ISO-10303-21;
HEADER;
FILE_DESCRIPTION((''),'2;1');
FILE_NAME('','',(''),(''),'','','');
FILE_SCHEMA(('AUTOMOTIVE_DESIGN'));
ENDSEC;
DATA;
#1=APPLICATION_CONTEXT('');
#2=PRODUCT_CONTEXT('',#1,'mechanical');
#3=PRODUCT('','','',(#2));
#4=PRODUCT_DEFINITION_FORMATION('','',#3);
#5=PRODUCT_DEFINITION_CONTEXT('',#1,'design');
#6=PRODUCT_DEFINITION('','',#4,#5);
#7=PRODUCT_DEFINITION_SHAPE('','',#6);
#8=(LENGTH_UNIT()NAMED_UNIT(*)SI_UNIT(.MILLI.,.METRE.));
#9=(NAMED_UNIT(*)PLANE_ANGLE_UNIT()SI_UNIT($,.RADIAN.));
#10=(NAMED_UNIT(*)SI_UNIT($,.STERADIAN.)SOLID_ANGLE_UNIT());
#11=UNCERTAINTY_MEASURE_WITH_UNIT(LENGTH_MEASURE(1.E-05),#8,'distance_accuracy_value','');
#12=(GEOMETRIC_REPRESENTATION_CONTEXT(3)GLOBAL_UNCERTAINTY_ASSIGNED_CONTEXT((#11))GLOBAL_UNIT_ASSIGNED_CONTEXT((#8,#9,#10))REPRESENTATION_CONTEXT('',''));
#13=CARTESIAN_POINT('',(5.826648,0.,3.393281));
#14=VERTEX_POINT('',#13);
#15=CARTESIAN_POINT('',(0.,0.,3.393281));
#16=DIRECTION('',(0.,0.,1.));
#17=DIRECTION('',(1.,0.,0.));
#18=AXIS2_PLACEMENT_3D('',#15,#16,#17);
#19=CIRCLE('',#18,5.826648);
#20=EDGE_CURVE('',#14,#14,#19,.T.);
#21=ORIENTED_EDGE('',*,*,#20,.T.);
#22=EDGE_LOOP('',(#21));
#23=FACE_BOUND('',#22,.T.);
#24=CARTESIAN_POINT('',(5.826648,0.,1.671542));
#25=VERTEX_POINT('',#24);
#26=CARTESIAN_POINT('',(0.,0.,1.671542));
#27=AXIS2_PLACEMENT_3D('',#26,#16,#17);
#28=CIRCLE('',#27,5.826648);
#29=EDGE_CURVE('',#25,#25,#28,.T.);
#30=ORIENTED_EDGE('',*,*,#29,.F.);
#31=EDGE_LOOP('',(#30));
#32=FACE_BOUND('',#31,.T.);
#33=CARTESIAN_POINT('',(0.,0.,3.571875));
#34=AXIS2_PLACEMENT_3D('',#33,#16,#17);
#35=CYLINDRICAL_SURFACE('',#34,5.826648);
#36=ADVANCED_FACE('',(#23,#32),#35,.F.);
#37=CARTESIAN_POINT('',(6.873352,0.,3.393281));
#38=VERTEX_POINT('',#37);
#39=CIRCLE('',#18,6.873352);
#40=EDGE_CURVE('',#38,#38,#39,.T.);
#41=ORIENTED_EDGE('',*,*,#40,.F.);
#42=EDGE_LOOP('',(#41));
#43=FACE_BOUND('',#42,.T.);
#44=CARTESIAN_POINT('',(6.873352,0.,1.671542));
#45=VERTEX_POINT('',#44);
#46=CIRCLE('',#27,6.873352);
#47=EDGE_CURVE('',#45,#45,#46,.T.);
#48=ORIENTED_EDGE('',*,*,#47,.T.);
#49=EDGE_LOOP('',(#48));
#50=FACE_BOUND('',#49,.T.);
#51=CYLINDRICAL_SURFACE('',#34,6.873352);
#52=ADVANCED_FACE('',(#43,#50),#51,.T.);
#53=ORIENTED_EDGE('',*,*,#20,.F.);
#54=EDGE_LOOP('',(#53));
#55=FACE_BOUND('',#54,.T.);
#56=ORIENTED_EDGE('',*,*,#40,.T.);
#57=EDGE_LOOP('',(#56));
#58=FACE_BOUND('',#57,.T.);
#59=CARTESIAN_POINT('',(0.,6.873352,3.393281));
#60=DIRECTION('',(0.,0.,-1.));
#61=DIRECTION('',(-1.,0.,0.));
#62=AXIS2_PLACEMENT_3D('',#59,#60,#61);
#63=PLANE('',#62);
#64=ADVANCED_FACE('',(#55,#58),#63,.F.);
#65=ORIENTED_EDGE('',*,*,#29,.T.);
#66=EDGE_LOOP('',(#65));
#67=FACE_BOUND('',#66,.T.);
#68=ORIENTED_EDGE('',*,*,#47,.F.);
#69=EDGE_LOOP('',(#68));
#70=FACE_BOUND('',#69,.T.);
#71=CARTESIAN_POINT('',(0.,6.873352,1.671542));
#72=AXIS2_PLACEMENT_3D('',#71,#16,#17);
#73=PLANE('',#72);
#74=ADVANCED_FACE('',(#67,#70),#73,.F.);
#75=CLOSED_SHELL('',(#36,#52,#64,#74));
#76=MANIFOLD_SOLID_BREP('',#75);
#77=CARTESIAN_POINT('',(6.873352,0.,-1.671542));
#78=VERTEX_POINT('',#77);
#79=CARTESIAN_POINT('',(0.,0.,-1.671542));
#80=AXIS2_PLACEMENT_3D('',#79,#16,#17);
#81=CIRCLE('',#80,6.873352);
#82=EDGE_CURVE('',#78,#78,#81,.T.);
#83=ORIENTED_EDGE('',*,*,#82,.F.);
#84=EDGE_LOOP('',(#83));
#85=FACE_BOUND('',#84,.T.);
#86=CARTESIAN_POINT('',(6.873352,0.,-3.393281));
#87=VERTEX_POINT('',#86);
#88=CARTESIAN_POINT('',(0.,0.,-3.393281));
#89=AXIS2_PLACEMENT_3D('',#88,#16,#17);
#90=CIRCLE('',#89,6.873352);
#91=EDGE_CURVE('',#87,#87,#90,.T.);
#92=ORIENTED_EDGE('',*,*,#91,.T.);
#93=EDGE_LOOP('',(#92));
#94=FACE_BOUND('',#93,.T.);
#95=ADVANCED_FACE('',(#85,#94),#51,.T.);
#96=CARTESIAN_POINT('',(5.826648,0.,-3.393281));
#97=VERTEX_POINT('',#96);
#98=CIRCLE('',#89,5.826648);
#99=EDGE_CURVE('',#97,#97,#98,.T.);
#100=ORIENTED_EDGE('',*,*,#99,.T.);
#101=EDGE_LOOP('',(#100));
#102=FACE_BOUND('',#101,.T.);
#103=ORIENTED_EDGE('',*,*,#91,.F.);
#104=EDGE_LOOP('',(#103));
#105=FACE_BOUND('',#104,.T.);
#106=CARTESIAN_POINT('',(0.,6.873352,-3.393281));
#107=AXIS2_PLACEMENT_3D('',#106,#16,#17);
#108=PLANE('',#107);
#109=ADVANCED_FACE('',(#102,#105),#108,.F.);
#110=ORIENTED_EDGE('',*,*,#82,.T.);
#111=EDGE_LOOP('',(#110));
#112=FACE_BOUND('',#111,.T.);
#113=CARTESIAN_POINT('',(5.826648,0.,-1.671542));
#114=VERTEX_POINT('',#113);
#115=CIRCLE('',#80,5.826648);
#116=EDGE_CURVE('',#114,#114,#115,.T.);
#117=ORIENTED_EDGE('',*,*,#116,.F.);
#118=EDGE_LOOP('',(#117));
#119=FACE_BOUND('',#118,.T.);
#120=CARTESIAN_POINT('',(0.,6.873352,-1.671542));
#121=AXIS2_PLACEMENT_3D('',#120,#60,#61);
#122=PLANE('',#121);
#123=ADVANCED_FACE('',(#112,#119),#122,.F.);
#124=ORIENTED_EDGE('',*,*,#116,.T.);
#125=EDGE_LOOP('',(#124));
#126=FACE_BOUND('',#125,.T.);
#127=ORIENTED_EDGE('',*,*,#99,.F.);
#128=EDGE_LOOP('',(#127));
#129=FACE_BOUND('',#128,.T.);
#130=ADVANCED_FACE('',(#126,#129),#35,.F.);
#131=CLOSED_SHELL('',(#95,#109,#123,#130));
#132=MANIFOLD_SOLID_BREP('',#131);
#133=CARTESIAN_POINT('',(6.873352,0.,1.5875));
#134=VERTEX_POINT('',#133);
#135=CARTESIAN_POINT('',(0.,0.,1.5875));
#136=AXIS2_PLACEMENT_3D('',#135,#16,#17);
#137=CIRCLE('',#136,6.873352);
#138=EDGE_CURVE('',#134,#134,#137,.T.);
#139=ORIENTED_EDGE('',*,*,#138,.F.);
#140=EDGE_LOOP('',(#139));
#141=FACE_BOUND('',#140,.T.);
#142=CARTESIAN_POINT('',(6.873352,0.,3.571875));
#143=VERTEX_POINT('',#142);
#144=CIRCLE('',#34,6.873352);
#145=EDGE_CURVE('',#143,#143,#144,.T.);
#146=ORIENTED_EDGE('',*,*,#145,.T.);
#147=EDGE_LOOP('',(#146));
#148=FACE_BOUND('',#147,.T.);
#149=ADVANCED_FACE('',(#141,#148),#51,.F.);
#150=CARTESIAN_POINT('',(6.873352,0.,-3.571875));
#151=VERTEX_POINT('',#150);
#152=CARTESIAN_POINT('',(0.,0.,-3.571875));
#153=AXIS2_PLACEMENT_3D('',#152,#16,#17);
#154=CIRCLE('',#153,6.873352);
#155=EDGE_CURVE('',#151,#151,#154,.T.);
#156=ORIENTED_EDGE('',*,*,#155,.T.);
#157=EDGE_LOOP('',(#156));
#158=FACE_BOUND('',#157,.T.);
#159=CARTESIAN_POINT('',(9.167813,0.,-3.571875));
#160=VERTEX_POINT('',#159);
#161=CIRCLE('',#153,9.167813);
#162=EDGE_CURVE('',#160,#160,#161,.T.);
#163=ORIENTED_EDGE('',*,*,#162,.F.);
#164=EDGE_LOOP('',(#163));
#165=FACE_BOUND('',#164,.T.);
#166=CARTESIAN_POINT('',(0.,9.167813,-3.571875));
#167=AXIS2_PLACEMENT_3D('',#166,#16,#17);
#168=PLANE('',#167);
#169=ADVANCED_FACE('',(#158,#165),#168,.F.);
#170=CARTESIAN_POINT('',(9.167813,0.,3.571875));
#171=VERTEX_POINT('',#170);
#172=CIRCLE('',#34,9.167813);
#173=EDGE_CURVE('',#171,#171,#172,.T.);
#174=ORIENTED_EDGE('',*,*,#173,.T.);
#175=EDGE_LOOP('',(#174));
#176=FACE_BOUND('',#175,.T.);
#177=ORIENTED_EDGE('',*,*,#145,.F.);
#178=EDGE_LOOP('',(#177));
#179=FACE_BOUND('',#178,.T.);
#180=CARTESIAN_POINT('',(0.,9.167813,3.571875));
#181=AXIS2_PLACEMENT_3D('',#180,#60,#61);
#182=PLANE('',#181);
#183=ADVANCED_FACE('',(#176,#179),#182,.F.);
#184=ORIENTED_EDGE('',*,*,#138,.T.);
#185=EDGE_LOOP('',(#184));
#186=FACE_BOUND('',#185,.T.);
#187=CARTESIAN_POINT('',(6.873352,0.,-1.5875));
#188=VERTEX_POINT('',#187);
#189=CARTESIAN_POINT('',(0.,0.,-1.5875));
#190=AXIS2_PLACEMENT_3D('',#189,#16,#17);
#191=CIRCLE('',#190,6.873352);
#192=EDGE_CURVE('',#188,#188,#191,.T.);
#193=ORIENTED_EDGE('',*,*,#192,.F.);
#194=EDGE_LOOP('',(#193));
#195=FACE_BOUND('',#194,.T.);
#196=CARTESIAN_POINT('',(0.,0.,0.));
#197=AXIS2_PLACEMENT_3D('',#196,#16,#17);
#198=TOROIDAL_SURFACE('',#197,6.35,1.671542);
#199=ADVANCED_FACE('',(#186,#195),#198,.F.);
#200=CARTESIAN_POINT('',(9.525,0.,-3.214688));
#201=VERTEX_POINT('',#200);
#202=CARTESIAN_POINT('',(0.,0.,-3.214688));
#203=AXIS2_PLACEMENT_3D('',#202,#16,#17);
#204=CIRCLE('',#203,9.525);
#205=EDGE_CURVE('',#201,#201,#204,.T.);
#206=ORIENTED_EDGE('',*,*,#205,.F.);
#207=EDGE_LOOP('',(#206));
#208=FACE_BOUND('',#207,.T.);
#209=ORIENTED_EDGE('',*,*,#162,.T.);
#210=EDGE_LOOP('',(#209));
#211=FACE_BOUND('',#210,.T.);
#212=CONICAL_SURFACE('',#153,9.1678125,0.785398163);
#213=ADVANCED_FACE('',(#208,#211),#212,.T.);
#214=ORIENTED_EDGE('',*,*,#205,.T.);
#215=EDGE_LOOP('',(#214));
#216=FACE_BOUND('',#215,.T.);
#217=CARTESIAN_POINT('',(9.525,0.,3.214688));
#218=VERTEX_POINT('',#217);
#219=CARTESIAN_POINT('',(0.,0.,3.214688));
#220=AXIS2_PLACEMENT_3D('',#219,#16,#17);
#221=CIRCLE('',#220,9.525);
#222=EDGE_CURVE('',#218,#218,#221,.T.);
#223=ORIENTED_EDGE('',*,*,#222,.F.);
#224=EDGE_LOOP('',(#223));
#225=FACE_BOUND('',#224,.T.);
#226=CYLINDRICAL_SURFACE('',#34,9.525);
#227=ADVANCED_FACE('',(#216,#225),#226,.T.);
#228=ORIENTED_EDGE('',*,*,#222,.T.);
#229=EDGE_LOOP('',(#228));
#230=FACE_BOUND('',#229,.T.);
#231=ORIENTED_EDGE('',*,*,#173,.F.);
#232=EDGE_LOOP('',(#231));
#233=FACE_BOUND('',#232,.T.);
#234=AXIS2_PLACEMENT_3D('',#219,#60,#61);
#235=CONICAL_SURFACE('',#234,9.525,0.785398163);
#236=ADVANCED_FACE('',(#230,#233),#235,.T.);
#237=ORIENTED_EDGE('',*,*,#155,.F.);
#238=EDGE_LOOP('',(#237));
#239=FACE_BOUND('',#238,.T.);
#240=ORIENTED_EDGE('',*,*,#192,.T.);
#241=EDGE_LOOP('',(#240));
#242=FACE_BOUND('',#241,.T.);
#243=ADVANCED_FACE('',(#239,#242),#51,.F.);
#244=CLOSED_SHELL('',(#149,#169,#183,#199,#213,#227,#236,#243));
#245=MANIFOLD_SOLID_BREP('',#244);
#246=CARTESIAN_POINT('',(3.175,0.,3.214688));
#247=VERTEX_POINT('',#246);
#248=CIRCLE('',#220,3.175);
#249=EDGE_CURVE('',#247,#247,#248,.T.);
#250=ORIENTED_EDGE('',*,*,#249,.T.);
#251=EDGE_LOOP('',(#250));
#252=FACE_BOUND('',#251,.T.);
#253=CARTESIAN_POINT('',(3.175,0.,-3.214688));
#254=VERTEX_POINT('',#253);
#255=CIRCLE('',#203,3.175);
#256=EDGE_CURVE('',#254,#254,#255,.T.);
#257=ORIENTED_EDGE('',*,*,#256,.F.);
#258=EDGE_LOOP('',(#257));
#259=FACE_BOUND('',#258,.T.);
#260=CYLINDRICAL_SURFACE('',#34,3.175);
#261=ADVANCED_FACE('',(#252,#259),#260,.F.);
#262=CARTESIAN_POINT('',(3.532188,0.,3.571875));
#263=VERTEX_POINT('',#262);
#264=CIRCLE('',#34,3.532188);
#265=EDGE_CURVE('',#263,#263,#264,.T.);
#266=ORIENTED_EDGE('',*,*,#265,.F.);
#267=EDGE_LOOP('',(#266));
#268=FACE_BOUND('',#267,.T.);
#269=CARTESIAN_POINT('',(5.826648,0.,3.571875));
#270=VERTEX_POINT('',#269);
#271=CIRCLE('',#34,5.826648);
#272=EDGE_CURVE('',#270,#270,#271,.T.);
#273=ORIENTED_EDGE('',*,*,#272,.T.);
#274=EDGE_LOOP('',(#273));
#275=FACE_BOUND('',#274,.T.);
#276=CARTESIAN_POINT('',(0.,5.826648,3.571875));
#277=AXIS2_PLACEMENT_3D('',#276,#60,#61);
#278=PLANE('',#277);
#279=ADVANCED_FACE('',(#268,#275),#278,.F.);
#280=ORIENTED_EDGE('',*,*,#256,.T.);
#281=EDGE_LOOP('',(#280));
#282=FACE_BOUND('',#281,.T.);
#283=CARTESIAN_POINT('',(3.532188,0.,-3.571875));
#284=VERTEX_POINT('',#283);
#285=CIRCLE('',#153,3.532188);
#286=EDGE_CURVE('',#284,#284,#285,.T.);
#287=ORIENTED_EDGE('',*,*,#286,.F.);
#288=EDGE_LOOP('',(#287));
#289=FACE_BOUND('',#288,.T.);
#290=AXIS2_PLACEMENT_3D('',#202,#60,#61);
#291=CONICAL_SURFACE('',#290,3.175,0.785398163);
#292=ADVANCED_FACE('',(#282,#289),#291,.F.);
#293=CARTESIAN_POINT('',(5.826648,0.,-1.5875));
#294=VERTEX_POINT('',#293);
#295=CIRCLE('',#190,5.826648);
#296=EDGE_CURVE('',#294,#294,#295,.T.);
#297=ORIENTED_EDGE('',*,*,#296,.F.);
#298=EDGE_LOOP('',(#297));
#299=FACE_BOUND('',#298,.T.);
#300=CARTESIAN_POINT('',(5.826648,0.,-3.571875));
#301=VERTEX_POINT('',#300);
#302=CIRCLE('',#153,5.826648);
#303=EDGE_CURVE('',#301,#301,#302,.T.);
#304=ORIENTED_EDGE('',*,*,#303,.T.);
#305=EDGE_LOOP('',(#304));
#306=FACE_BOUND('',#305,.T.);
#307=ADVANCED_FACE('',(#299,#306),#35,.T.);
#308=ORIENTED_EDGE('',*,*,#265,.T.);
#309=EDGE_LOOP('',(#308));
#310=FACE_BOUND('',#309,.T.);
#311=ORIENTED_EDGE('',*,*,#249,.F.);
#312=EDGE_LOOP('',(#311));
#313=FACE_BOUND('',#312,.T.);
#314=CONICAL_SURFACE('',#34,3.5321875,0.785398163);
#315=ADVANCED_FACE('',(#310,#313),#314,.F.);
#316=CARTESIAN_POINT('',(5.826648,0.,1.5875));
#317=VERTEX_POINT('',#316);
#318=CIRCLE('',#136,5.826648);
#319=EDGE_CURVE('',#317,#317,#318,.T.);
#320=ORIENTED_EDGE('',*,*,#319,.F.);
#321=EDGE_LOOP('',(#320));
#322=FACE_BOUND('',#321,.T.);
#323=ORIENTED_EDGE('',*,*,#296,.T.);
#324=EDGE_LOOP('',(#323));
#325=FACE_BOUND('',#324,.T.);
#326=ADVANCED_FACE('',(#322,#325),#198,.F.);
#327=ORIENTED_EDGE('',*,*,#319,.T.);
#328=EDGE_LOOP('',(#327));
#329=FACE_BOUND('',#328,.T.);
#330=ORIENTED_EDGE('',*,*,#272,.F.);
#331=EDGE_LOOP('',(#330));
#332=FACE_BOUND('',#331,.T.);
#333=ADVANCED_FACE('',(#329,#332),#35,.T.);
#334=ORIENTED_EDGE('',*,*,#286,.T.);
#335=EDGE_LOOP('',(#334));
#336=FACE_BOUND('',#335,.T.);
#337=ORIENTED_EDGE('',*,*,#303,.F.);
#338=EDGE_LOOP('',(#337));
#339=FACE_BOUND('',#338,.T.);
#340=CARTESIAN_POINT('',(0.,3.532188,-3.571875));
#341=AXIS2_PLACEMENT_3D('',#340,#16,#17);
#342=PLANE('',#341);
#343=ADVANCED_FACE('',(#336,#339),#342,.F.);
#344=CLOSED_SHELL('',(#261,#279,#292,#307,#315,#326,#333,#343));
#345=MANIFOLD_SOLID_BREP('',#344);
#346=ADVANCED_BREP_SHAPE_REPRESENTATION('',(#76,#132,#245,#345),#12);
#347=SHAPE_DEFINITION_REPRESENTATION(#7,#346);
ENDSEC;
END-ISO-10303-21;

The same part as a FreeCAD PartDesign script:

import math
import FreeCAD as App
import Part
import Sketcher

V = App.Vector
Q = App.Units.Quantity

doc = App.newDocument("Part")
params = doc.addObject("Spreadsheet::Sheet", "Params")
for row, (alias, value) in enumerate([
    ("sketch1_height", "0.078125 in"),
    ("revolution_angle", "360 deg"),
    ("sketch2_height", "0.078125 in"),
    ("revolution2_angle", "360 deg"),
    ("revolution3_angle", "360 deg"),
], start=1):
    params.set(f"A{row}", alias)
    params.set(f"B{row}", "=" + value)
    params.setAlias(f"B{row}", alias)

body = doc.addObject("PartDesign::Body", "Body")

sketch1 = doc.addObject("Sketcher::SketchObject", "Sketch")
body.addObject(sketch1)
sketch1.AttachmentSupport = (doc.YZ_Plane, [""])
sketch1.MapMode = "FlatFace"
sketch1.addGeometry([
    Part.LineSegment(V(9.525, -3.214688, 0), V(9.525, 3.214688, 0)),
    Part.LineSegment(V(9.525, 3.214688, 0), V(9.167813, 3.571875, 0)),
    Part.LineSegment(V(9.167813, 3.571875, 0), V(6.873352, 3.571875, 0)),
    Part.LineSegment(V(6.873352, 3.571875, 0), V(6.873352, 1.5875, 0)),
    Part.ArcOfCircle(Part.Circle(V(6.35, 0, 0), V(0, 0, 1), 1.671542), math.radians(-71.754146), math.radians(71.754146)),
    Part.LineSegment(V(6.873352, -1.5875, 0), V(6.873352, -3.571875, 0)),
    Part.LineSegment(V(6.873352, -3.571875, 0), V(9.167813, -3.571875, 0)),
    Part.LineSegment(V(9.167813, -3.571875, 0), V(9.525, -3.214688, 0)),
], False)
sketch1.addConstraint([
    Sketcher.Constraint("Coincident", 0, 2, 1, 1),
    Sketcher.Constraint("Coincident", 1, 2, 2, 1),
    Sketcher.Constraint("Coincident", 2, 2, 3, 1),
    Sketcher.Constraint("Coincident", 3, 2, 4, 2),
    Sketcher.Constraint("Coincident", 4, 1, 5, 1),
    Sketcher.Constraint("Coincident", 5, 2, 6, 1),
    Sketcher.Constraint("Coincident", 6, 2, 7, 1),
    Sketcher.Constraint("Coincident", 7, 2, 0, 1),
    Sketcher.Constraint("Vertical", 0),
    Sketcher.Constraint("Horizontal", 2),
    Sketcher.Constraint("Vertical", 3),
    Sketcher.Constraint("Vertical", 5),
    Sketcher.Constraint("Horizontal", 6),
    Sketcher.Constraint("Symmetric", 3, 2, 4, 1, -1),
    Sketcher.Constraint("Symmetric", 1, 2, 6, 2, -1),
    Sketcher.Constraint("Perpendicular", 1, 7),
    Sketcher.Constraint("Equal", 1, 7),
    Sketcher.Constraint("DistanceY", 3, 2, 3, 1, Q("0.078125 in")),
    Sketcher.Constraint("DistanceX", -1, 1, 4, 3, Q("0.25 in")),
    Sketcher.Constraint("DistanceX", -1, 1, 0, 2, Q("0.375 in")),
    Sketcher.Constraint("DistanceY", -1, 1, 1, 2, Q("0.140625 in")),
    Sketcher.Constraint("Radius", 4, 1.671542),
    Sketcher.Constraint("DistanceX", 2, 2, 2, 1, 2.294461),
])
sketch1.setExpression("Constraints[17]", "Params.sketch1_height")
revolution = doc.addObject("PartDesign::Revolution", "Revolution")
body.addObject(revolution)
revolution.Profile = sketch1
revolution.ReferenceAxis = (sketch1, ["V_Axis"])
revolution.setExpression("Angle", "Params.revolution_angle")
body2 = doc.addObject("PartDesign::Body", "Body001")

sketch2 = doc.addObject("Sketcher::SketchObject", "Sketch001")
body2.addObject(sketch2)
sketch2.AttachmentSupport = (doc.getObject("YZ_Plane001"), [""])
sketch2.MapMode = "FlatFace"
sketch2.addGeometry([
    Part.LineSegment(V(5.826648, 1.5875, 0), V(5.826648, 3.571875, 0)),
    Part.LineSegment(V(5.826648, 3.571875, 0), V(3.532188, 3.571875, 0)),
    Part.LineSegment(V(3.532188, 3.571875, 0), V(3.175, 3.214688, 0)),
    Part.LineSegment(V(3.175, 3.214688, 0), V(3.175, -3.214688, 0)),
    Part.LineSegment(V(3.175, -3.214688, 0), V(3.532188, -3.571875, 0)),
    Part.LineSegment(V(3.532188, -3.571875, 0), V(5.826648, -3.571875, 0)),
    Part.LineSegment(V(5.826648, -3.571875, 0), V(5.826648, -1.5875, 0)),
    Part.ArcOfCircle(Part.Circle(V(6.35, 0, 0), V(0, 0, 1), 1.671542), math.radians(108.245854), math.radians(251.754146)),
], False)
sketch2.addConstraint([
    Sketcher.Constraint("Coincident", 0, 2, 1, 1),
    Sketcher.Constraint("Coincident", 1, 2, 2, 1),
    Sketcher.Constraint("Coincident", 2, 2, 3, 1),
    Sketcher.Constraint("Coincident", 3, 2, 4, 1),
    Sketcher.Constraint("Coincident", 4, 2, 5, 1),
    Sketcher.Constraint("Coincident", 5, 2, 6, 1),
    Sketcher.Constraint("Coincident", 6, 2, 7, 2),
    Sketcher.Constraint("Coincident", 7, 1, 0, 1),
    Sketcher.Constraint("Vertical", 0),
    Sketcher.Constraint("Horizontal", 1),
    Sketcher.Constraint("Vertical", 3),
    Sketcher.Constraint("Horizontal", 5),
    Sketcher.Constraint("Vertical", 6),
    Sketcher.Constraint("Symmetric", 1, 2, 4, 2, -1),
    Sketcher.Constraint("Symmetric", 6, 2, 7, 1, -1),
    Sketcher.Constraint("Perpendicular", 2, 4),
    Sketcher.Constraint("Equal", 2, 4),
    Sketcher.Constraint("DistanceY", 0, 1, 0, 2, Q("0.078125 in")),
    Sketcher.Constraint("DistanceX", -1, 1, 7, 3, Q("0.25 in")),
    Sketcher.Constraint("DistanceY", -1, 1, 0, 2, Q("0.140625 in")),
    Sketcher.Constraint("DistanceX", -1, 1, 2, 2, Q("0.125 in")),
    Sketcher.Constraint("Radius", 7, 1.671542),
    Sketcher.Constraint("DistanceX", 1, 2, 1, 1, 2.294461),
])
sketch2.setExpression("Constraints[17]", "Params.sketch2_height")
revolution2 = doc.addObject("PartDesign::Revolution", "Revolution001")
body2.addObject(revolution2)
revolution2.Profile = sketch2
revolution2.ReferenceAxis = (sketch2, ["V_Axis"])
revolution2.setExpression("Angle", "Params.revolution2_angle")
body3 = doc.addObject("PartDesign::Body", "Body002")
body3.AllowCompound = True

sketch3 = doc.addObject("Sketcher::SketchObject", "Sketch002")
body3.addObject(sketch3)
sketch3.AttachmentSupport = (doc.getObject("YZ_Plane002"), [""])
sketch3.MapMode = "FlatFace"
sketch3.addGeometry([
    Part.LineSegment(V(6.873352, 3.393281, 0), V(5.826648, 3.393281, 0)),
    Part.LineSegment(V(5.826648, 3.393281, 0), V(5.826648, 1.671542, 0)),
    Part.LineSegment(V(5.826648, 1.671542, 0), V(6.873352, 1.671542, 0)),
    Part.LineSegment(V(6.873352, 1.671542, 0), V(6.873352, 3.393281, 0)),
    Part.LineSegment(V(6.873352, -1.671542, 0), V(5.826648, -1.671542, 0)),
    Part.LineSegment(V(5.826648, -1.671542, 0), V(5.826648, -3.393281, 0)),
    Part.LineSegment(V(5.826648, -3.393281, 0), V(6.873352, -3.393281, 0)),
    Part.LineSegment(V(6.873352, -3.393281, 0), V(6.873352, -1.671542, 0)),
], False)
sketch3.addConstraint([
    Sketcher.Constraint("Coincident", 0, 2, 1, 1),
    Sketcher.Constraint("Coincident", 1, 2, 2, 1),
    Sketcher.Constraint("Coincident", 2, 2, 3, 1),
    Sketcher.Constraint("Coincident", 3, 2, 0, 1),
    Sketcher.Constraint("Coincident", 4, 2, 5, 1),
    Sketcher.Constraint("Coincident", 5, 2, 6, 1),
    Sketcher.Constraint("Coincident", 6, 2, 7, 1),
    Sketcher.Constraint("Coincident", 7, 2, 4, 1),
    Sketcher.Constraint("Horizontal", 0),
    Sketcher.Constraint("Vertical", 1),
    Sketcher.Constraint("Horizontal", 2),
    Sketcher.Constraint("Vertical", 3),
    Sketcher.Constraint("Horizontal", 4),
    Sketcher.Constraint("Vertical", 5),
    Sketcher.Constraint("Horizontal", 6),
    Sketcher.Constraint("Vertical", 7),
    Sketcher.Constraint("Symmetric", 1, 2, 4, 2, -1),
    Sketcher.Constraint("Symmetric", 3, 2, 6, 2, -1),
    Sketcher.Constraint("DistanceY", 1, 2, 1, 1, 1.721739),
    Sketcher.Constraint("DistanceX", 0, 2, 0, 1, 1.046703),
    Sketcher.Constraint("DistanceX", -1, 1, 0, 2, 5.826648),
    Sketcher.Constraint("DistanceY", -1, 1, 0, 2, 3.393281),
])
revolution3 = doc.addObject("PartDesign::Revolution", "Revolution002")
body3.addObject(revolution3)
revolution3.Profile = sketch3
revolution3.ReferenceAxis = (sketch3, ["V_Axis"])
revolution3.setExpression("Angle", "Params.revolution3_angle")

doc.recompute()
